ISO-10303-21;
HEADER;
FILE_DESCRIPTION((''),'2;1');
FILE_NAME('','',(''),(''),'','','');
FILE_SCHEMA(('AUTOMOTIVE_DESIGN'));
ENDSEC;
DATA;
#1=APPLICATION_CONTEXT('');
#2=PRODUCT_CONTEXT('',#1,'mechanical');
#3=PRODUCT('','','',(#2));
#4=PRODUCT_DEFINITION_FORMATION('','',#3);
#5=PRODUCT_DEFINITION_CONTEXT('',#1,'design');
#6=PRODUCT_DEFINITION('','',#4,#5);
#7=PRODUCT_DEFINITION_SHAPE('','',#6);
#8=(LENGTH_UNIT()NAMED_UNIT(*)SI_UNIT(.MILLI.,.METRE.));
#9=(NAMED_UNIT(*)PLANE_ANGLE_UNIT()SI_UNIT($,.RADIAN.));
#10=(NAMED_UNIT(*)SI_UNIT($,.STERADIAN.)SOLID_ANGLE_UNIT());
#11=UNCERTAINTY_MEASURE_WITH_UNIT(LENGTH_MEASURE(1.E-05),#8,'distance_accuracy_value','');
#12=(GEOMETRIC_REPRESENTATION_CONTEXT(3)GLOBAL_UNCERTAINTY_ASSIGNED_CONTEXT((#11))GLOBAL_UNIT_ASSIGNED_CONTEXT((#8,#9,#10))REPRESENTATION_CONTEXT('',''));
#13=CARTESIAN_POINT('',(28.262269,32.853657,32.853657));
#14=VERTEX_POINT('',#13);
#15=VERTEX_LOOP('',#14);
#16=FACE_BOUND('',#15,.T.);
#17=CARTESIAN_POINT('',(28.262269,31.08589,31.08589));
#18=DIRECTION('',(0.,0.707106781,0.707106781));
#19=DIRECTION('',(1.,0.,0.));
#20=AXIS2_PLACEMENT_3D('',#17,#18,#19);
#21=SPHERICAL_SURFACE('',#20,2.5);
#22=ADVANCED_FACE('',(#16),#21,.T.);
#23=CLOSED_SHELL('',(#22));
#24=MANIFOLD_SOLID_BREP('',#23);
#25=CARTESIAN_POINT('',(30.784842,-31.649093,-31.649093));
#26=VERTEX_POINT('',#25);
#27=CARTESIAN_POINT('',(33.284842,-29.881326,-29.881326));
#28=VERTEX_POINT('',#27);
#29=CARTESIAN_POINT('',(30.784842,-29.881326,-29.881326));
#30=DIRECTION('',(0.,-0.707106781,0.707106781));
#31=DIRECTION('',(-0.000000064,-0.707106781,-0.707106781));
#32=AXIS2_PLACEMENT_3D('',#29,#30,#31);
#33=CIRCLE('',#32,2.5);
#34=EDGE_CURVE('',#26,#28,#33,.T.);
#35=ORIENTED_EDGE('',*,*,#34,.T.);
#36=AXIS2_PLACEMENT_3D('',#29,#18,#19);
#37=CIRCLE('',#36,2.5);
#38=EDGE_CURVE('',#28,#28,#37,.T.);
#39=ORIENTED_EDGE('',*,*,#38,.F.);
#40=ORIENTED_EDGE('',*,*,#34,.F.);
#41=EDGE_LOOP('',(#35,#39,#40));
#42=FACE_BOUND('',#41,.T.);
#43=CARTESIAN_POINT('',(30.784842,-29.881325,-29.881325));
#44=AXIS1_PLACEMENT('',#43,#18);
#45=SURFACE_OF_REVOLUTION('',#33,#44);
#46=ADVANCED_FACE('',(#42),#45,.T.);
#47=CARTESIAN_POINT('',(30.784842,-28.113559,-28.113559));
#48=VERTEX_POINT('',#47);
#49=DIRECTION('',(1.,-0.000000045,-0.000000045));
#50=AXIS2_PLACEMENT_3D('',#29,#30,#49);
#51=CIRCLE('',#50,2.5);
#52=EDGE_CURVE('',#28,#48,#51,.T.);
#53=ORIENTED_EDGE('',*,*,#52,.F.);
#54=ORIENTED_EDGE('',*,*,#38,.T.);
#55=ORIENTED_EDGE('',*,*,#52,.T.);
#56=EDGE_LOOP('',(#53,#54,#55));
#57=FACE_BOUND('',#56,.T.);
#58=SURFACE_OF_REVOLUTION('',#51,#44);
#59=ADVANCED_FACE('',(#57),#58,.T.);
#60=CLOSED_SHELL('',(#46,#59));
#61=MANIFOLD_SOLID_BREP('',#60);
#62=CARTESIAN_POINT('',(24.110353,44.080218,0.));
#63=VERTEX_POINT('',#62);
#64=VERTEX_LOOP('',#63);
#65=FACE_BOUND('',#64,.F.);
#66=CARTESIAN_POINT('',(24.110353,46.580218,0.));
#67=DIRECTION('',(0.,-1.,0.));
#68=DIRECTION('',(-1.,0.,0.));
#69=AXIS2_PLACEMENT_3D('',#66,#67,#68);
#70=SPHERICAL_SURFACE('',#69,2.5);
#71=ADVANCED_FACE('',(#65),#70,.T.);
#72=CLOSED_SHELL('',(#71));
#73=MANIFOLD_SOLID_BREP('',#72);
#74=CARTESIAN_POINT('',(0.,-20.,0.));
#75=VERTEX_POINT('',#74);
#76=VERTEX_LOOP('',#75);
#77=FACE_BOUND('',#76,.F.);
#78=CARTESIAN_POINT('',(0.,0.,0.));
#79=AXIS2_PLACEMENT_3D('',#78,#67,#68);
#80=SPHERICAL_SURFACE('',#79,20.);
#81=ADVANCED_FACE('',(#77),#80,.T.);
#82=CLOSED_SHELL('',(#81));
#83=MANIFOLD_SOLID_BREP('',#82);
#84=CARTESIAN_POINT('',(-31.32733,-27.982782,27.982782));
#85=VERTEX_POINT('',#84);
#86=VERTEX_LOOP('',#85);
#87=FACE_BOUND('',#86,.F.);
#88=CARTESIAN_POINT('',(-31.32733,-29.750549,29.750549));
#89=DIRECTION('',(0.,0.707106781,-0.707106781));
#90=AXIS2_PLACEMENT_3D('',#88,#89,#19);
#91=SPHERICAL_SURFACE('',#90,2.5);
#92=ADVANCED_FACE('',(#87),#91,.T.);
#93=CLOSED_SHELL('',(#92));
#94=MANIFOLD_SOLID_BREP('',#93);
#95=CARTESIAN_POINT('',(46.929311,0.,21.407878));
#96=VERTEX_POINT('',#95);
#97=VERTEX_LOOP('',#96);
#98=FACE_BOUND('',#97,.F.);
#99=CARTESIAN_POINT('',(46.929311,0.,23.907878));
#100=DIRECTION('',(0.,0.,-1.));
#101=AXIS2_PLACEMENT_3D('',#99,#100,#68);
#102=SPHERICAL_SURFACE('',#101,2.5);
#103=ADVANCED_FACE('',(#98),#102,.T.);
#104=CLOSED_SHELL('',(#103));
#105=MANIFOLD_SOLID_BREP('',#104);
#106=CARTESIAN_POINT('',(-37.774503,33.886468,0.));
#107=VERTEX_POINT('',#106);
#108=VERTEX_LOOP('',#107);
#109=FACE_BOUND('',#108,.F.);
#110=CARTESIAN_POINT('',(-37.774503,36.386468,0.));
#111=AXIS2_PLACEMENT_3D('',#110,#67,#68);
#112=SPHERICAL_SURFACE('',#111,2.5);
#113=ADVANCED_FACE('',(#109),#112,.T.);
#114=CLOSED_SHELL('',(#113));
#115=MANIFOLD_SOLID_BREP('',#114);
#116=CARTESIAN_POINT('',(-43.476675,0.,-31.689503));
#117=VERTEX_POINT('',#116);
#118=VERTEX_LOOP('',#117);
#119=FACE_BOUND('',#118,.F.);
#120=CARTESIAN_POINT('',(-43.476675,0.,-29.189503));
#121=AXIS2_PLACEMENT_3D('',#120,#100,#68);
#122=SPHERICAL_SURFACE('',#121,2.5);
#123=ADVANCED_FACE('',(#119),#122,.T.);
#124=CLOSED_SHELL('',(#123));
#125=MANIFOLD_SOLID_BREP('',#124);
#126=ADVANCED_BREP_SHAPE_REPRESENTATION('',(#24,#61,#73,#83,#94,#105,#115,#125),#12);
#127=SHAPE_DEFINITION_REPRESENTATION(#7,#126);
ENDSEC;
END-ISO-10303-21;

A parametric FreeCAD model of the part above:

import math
import FreeCAD as App
import Part
import Sketcher
Q = App.Units.Quantity

doc = App.newDocument("Part")
body = doc.addObject("PartDesign::Body", "Body")

# Sketch on XY plane
sketch1 = body.newObject("Sketcher::SketchObject", "Sketch")
sketch1.AttachmentSupport = (doc.getObject("XY_Plane"), [""])
sketch1.MapMode = "FlatFace"
sketch1.addGeometry([
    Part.ArcOfCircle(Part.Circle(App.Vector(0, 0, 0), App.Vector(0, 0, 1), 20), math.radians(90), math.radians(270)),
    Part.LineSegment(App.Vector(0, -20, 0), App.Vector(0, 20, 0)),
], False)
sketch1.addConstraint([
    Sketcher.Constraint("Coincident", 0, 1, 1, 2),
    Sketcher.Constraint("Coincident", 1, 1, 0, 2),
    Sketcher.Constraint("Vertical", 1),
    Sketcher.Constraint("Coincident", 0, 3, -1, 1),
    Sketcher.Constraint("PointOnObject", 0, 1, -2),
    Sketcher.Constraint("Radius", 0, Q("20 mm")),
])
revolution = body.newObject("PartDesign::Revolution", "Revolution")
revolution.Profile = sketch1
revolution.ReferenceAxis = (sketch1, ["V_Axis"])
revolution.Angle = 360
body2 = doc.addObject("PartDesign::Body", "Body001")

# Sketch on XY plane
sketch2 = body2.newObject("Sketcher::SketchObject", "Sketch001")
sketch2.AttachmentSupport = (doc.getObject("XY_Plane001"), [""])
sketch2.MapMode = "FlatFace"
sketch2.addGeometry([
    Part.LineSegment(App.Vector(24.110353, 44.080218, 0), App.Vector(24.110353, 49.080218, 0)),
    Part.ArcOfCircle(Part.Circle(App.Vector(24.110353, 46.580218, 0), App.Vector(0, 0, 1), 2.5), math.radians(90), math.radians(270)),
], False)
sketch2.addGeometry(Part.LineSegment(App.Vector(24.110353, 44.080218, 0), App.Vector(24.110353, 49.080218, 0)), True)  # axis
sketch2.addConstraint([
    Sketcher.Constraint("Coincident", 0, 1, 1, 2),
    Sketcher.Constraint("Coincident", 1, 1, 0, 2),
    Sketcher.Constraint("Vertical", 0),
    Sketcher.Constraint("Vertical", 2),
    Sketcher.Constraint("Coincident", 2, 1, 0, 1),
    Sketcher.Constraint("Vertical", 1, 3, 0, 1),
    Sketcher.Constraint("Equal", 0, 2),
    Sketcher.Constraint("Radius", 1, Q("2.5 mm")),
    Sketcher.Constraint("DistanceY", -1, 1, 1, 3, Q("46.580218 mm")),
    Sketcher.Constraint("DistanceX", -1, 1, 1, 3, Q("24.110353 mm")),
])
revolution2 = body2.newObject("PartDesign::Revolution", "Revolution001")
revolution2.Profile = sketch2
revolution2.ReferenceAxis = (sketch2, ["Axis0"])
revolution2.Angle = 360
body3 = doc.addObject("PartDesign::Body", "Body002")

# Sketch on an angled plane
sketch3 = body3.newObject("Sketcher::SketchObject", "Sketch002")
sketch3.Placement = App.Placement(App.Vector(0, 0, 0), App.Rotation(App.Vector(-1, 0, 0), App.Vector(0, -0.707106781, 0.707106781), App.Vector(0, 0.707106781, 0.707106781), "ZXY"))
sketch3.addGeometry([
    Part.ArcOfCircle(Part.Circle(App.Vector(31.32733, 42.07363, 0), App.Vector(0, 0, 1), 2.5), math.radians(90), math.radians(270)),
    Part.LineSegment(App.Vector(31.32733, 39.57363, 0), App.Vector(31.32733, 44.57363, 0)),
], False)
sketch3.addGeometry(Part.LineSegment(App.Vector(31.32733, 39.57363, 0), App.Vector(31.32733, 44.57363, 0)), True)  # axis
sketch3.addConstraint([
    Sketcher.Constraint("Coincident", 0, 1, 1, 2),
    Sketcher.Constraint("Coincident", 1, 1, 0, 2),
    Sketcher.Constraint("Vertical", 1),
    Sketcher.Constraint("Vertical", 2),
    Sketcher.Constraint("Coincident", 2, 1, 1, 1),
    Sketcher.Constraint("Equal", 1, 2),
    Sketcher.Constraint("Radius", 0, Q("2.5 mm")),
    Sketcher.Constraint("DistanceX", -1, 1, 0, 3, Q("31.32733 mm")),
    Sketcher.Constraint("DistanceY", -1, 1, 0, 3, Q("42.07363 mm")),
    Sketcher.Constraint("DistanceX", -1, 1, 0, 1, Q("31.32733 mm")),
])
revolution3 = body3.newObject("PartDesign::Revolution", "Revolution002")
revolution3.Profile = sketch3
revolution3.ReferenceAxis = (sketch3, ["Axis0"])
revolution3.Angle = 360
body4 = doc.addObject("PartDesign::Body", "Body003")

# Sketch on an angled plane
sketch4 = body4.newObject("Sketcher::SketchObject", "Sketch003")
sketch4.Placement = App.Placement(App.Vector(0, 0, 0), App.Rotation(App.Vector(1, 0, 0), App.Vector(0, 0.707106781, 0.707106781), App.Vector(0, -0.707106781, 0.707106781), "ZXY"))
sketch4.addGeometry([
    Part.LineSegment(App.Vector(28.262269, 46.462087, 0), App.Vector(28.262269, 41.462087, 0)),
    Part.ArcOfCircle(Part.Circle(App.Vector(28.262269, 43.962087, 0), App.Vector(0, 0, 1), 2.5), math.radians(-90), math.radians(90)),
], False)
sketch4.addGeometry(Part.LineSegment(App.Vector(28.262269, 41.462087, 0), App.Vector(28.262269, 46.462087, 0)), True)  # axis
sketch4.addConstraint([
    Sketcher.Constraint("Coincident", 0, 1, 1, 2),
    Sketcher.Constraint("Coincident", 1, 1, 0, 2),
    Sketcher.Constraint("Vertical", 0),
    Sketcher.Constraint("Vertical", 2),
    Sketcher.Constraint("Coincident", 2, 1, 1, 1),
    Sketcher.Constraint("Vertical", 1, 3, 0, 1),
    Sketcher.Constraint("Equal", 0, 2),
    Sketcher.Constraint("Radius", 1, Q("2.5 mm")),
    Sketcher.Constraint("DistanceX", -1, 1, 1, 3, Q("28.262269 mm")),
    Sketcher.Constraint("DistanceY", -1, 1, 1, 3, Q("43.962087 mm")),
])
revolution4 = body4.newObject("PartDesign::Revolution", "Revolution003")
revolution4.Profile = sketch4
revolution4.ReferenceAxis = (sketch4, ["Axis0"])
revolution4.Angle = 360
body5 = doc.addObject("PartDesign::Body", "Body004")

# Sketch on XZ plane
sketch5 = body5.newObject("Sketcher::SketchObject", "Sketch004")
sketch5.AttachmentSupport = (doc.getObject("XZ_Plane004"), [""])
sketch5.MapMode = "FlatFace"
sketch5.addGeometry([
    Part.ArcOfCircle(Part.Circle(App.Vector(-43.476675, -29.189503, 0), App.Vector(0, 0, 1), 2.5), math.radians(90), math.radians(270)),
    Part.LineSegment(App.Vector(-43.476675, -31.689503, 0), App.Vector(-43.476675, -26.689503, 0)),
], False)
sketch5.addGeometry(Part.LineSegment(App.Vector(-43.476675, -31.689503, 0), App.Vector(-43.476675, -26.689503, 0)), True)  # axis
sketch5.addConstraint([
    Sketcher.Constraint("Coincident", 0, 1, 1, 2),
    Sketcher.Constraint("Coincident", 1, 1, 0, 2),
    Sketcher.Constraint("Vertical", 1),
    Sketcher.Constraint("Vertical", 2),
    Sketcher.Constraint("Coincident", 2, 1, 1, 1),
    Sketcher.Constraint("Equal", 1, 2),
    Sketcher.Constraint("Radius", 0, Q("2.5 mm")),
    Sketcher.Constraint("DistanceX", 0, 3, -1, 1, Q("43.476675 mm")),
    Sketcher.Constraint("DistanceY", 0, 3, -1, 1, Q("29.189503 mm")),
    Sketcher.Constraint("DistanceX", 0, 1, -1, 1, Q("43.476675 mm")),
])
revolution5 = body5.newObject("PartDesign::Revolution", "Revolution004")
revolution5.Profile = sketch5
revolution5.ReferenceAxis = (sketch5, ["Axis0"])
revolution5.Angle = 360
body6 = doc.addObject("PartDesign::Body", "Body005")

# Sketch on XY plane
sketch6 = body6.newObject("Sketcher::SketchObject", "Sketch005")
sketch6.AttachmentSupport = (doc.getObject("XY_Plane005"), [""])
sketch6.MapMode = "FlatFace"
sketch6.addGeometry([
    Part.ArcOfCircle(Part.Circle(App.Vector(-37.774503, 36.386468, 0), App.Vector(0, 0, 1), 2.5), math.radians(90), math.radians(270)),
    Part.LineSegment(App.Vector(-37.774503, 33.886468, 0), App.Vector(-37.774503, 38.886468, 0)),
], False)
sketch6.addGeometry(Part.LineSegment(App.Vector(-37.774503, 33.886468, 0), App.Vector(-37.774503, 38.886468, 0)), True)  # axis
sketch6.addConstraint([
    Sketcher.Constraint("Coincident", 0, 1, 1, 2),
    Sketcher.Constraint("Coincident", 1, 1, 0, 2),
    Sketcher.Constraint("Vertical", 1),
    Sketcher.Constraint("Vertical", 2),
    Sketcher.Constraint("Coincident", 2, 1, 1, 1),
    Sketcher.Constraint("Equal", 1, 2),
    Sketcher.Constraint("Radius", 0, Q("2.5 mm")),
    Sketcher.Constraint("DistanceX", 0, 3, -1, 1, Q("37.774503 mm")),
    Sketcher.Constraint("DistanceY", -1, 1, 0, 3, Q("36.386468 mm")),
    Sketcher.Constraint("DistanceX", 0, 1, -1, 1, Q("37.774503 mm")),
])
revolution6 = body6.newObject("PartDesign::Revolution", "Revolution005")
revolution6.Profile = sketch6
revolution6.ReferenceAxis = (sketch6, ["Axis0"])
revolution6.Angle = 360
body7 = doc.addObject("PartDesign::Body", "Body006")

# Sketch on an angled plane
sketch7 = body7.newObject("Sketcher::SketchObject", "Sketch006")
sketch7.Placement = App.Placement(App.Vector(0, 0, 0), App.Rotation(App.Vector(1, 0, 0), App.Vector(0, 0.707106781, 0.707106781), App.Vector(0, -0.707106781, 0.707106781), "ZXY"))
sketch7.addGeometry([
    Part.ArcOfCircle(Part.Circle(App.Vector(30.784842, -42.258576, 0), App.Vector(0, 0, 1), 2.5), math.radians(-90.000004), math.radians(0.000004)),
    Part.ArcOfCircle(Part.Circle(App.Vector(30.784842, -42.258576, 0), App.Vector(0, 0, 1), 2.5), math.radians(-0.000004), math.radians(90.000004)),
    Part.LineSegment(App.Vector(30.784842, -39.758576, 0), App.Vector(30.784842, -44.758576, 0)),
], False)
sketch7.addGeometry(Part.LineSegment(App.Vector(30.784842, -44.758576, 0), App.Vector(30.784842, -39.758576, 0)), True)  # axis
sketch7.addConstraint([
    Sketcher.Constraint("Tangent", 0, 2, 1, 1),
    Sketcher.Constraint("Coincident", 1, 2, 2, 1),
    Sketcher.Constraint("Coincident", 2, 2, 0, 1),
    Sketcher.Constraint("Vertical", 2),
    Sketcher.Constraint("Vertical", 3),
    Sketcher.Constraint("Coincident", 3, 1, 2, 2),
    Sketcher.Constraint("Equal", 0, 1),
    Sketcher.Constraint("Horizontal", 1, 3, 0, 2),
    Sketcher.Constraint("Vertical", 0, 3, 1, 2),
    Sketcher.Constraint("Equal", 2, 3),
    Sketcher.Constraint("Radius", 0, Q("2.5 mm")),
    Sketcher.Constraint("DistanceX", -1, 1, 0, 2, Q("33.284842 mm")),
    Sketcher.Constraint("DistanceY", 0, 3, -1, 1, Q("42.258576 mm")),
])
revolution7 = body7.newObject("PartDesign::Revolution", "Revolution006")
revolution7.Profile = sketch7
revolution7.ReferenceAxis = (sketch7, ["Axis0"])
revolution7.Angle = 360
body8 = doc.addObject("PartDesign::Body", "Body007")

# Sketch on XZ plane
sketch8 = body8.newObject("Sketcher::SketchObject", "Sketch007")
sketch8.AttachmentSupport = (doc.getObject("XZ_Plane007"), [""])
sketch8.MapMode = "FlatFace"
sketch8.addGeometry([
    Part.ArcOfCircle(Part.Circle(App.Vector(46.929311, 23.907878, 0), App.Vector(0, 0, 1), 2.5), math.radians(90), math.radians(270)),
    Part.LineSegment(App.Vector(46.929311, 21.407878, 0), App.Vector(46.929311, 26.407878, 0)),
], False)
sketch8.addGeometry(Part.LineSegment(App.Vector(46.929311, 21.407878, 0), App.Vector(46.929311, 26.407878, 0)), True)  # axis
sketch8.addConstraint([
    Sketcher.Constraint("Coincident", 0, 1, 1, 2),
    Sketcher.Constraint("Coincident", 1, 1, 0, 2),
    Sketcher.Constraint("Vertical", 1),
    Sketcher.Constraint("Vertical", 2),
    Sketcher.Constraint("Coincident", 2, 1, 1, 1),
    Sketcher.Constraint("Equal", 1, 2),
    Sketcher.Constraint("Radius", 0, Q("2.5 mm")),
    Sketcher.Constraint("DistanceX", -1, 1, 0, 3, Q("46.929311 mm")),
    Sketcher.Constraint("DistanceY", -1, 1, 0, 3, Q("23.907878 mm")),
    Sketcher.Constraint("DistanceX", -1, 1, 0, 1, Q("46.929311 mm")),
])
revolution8 = body8.newObject("PartDesign::Revolution", "Revolution007")
revolution8.Profile = sketch8
revolution8.ReferenceAxis = (sketch8, ["Axis0"])
revolution8.Angle = 360

doc.recompute()
